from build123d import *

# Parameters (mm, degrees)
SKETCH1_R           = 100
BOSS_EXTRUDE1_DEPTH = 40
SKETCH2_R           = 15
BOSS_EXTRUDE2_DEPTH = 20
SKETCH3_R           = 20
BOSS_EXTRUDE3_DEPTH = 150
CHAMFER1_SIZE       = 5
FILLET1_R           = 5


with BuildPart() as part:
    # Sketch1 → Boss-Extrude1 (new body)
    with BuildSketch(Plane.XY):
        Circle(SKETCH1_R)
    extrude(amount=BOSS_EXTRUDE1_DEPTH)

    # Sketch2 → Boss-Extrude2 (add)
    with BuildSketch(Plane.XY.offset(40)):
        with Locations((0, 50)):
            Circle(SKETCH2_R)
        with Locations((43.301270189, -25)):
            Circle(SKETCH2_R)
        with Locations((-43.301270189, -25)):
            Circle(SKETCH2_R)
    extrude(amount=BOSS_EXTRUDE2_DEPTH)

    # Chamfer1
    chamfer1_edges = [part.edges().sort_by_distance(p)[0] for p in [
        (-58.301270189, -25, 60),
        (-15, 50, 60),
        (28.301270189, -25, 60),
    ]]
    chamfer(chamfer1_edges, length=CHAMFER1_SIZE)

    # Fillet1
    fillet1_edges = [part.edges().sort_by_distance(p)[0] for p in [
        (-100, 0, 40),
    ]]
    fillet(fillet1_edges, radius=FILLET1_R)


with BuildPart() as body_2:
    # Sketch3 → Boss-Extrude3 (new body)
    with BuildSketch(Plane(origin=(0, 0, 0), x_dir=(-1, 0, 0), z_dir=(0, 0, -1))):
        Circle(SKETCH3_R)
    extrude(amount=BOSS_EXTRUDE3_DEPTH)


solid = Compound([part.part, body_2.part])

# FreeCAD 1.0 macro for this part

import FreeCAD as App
import Part
import Sketcher

V = App.Vector
Q = App.Units.Quantity


def edges_at(feature, points):
    """Names of the edges that pass closest to the given points."""
    edges = feature.Shape.Edges
    near = lambda p: min(range(len(edges)), key=lambda i: edges[i].distToShape(Part.Vertex(*p))[0])
    return sorted({f"Edge{near(p) + 1}" for p in points})

doc = App.newDocument("Part")
body = doc.addObject("PartDesign::Body", "Body")

sketch1 = body.newObject("Sketcher::SketchObject", "Sketch")
sketch1.AttachmentSupport = (doc.getObject("XY_Plane"), [""])
sketch1.MapMode = "FlatFace"
sketch1.addGeometry(Part.Circle(V(0, 0, 0), V(0, 0, 1), 100), False)
sketch1.addConstraint([
    Sketcher.Constraint("Coincident", 0, 3, -1, 1),
    Sketcher.Constraint("Diameter", 0, Q("200 mm")),
])
pad1 = body.newObject("PartDesign::Pad", "Pad")
pad1.Profile = sketch1
pad1.Length = 40

sketch2 = body.newObject("Sketcher::SketchObject", "Sketch001")
sketch2.AttachmentSupport = (doc.getObject("XY_Plane"), [""])
sketch2.MapMode = "FlatFace"
sketch2.AttachmentOffset = App.Placement(V(0, 0, 40), App.Rotation())
sketch2.addGeometry([
    Part.Circle(V(0, 50, 0), V(0, 0, 1), 15),
    Part.Circle(V(43, -25, 0), V(0, 0, 1), 15),
    Part.Circle(V(-43, -25, 0), V(0, 0, 1), 15),
], False)
sketch2.addConstraint([
    Sketcher.Constraint("Equal", 0, 1),
    Sketcher.Constraint("Equal", 1, 2),
    Sketcher.Constraint("Symmetric", 1, 3, 2, 3, -2),
    Sketcher.Constraint("PointOnObject", 0, 3, -2),
    Sketcher.Constraint("Diameter", 0, Q("30 mm")),
    Sketcher.Constraint("DistanceY", -1, 1, 0, 3, Q("50 mm")),
    Sketcher.Constraint("DistanceY", 1, 3, -1, 1, Q("25 mm")),
    Sketcher.Constraint("DistanceX", -1, 1, 1, 3, Q("43.30127 mm")),
])
pad2 = body.newObject("PartDesign::Pad", "Pad001")
pad2.Profile = sketch2
pad2.Length = 20
doc.recompute()

chamfer = body.newObject("PartDesign::Chamfer", "Chamfer")
chamfer.Base = (pad2, edges_at(pad2, [(-58.301, -25, 60), (-15, 50, 60), (28.301, -25, 60)]))
chamfer.Size = 5
doc.recompute()

fillet = body.newObject("PartDesign::Fillet", "Fillet")
fillet.Base = (chamfer, edges_at(chamfer, [(-100, 0, 40)]))
fillet.Radius = 5
body2 = doc.addObject("PartDesign::Body", "Body001")

sketch3 = body2.newObject("Sketcher::SketchObject", "Sketch002")
sketch3.AttachmentSupport = (doc.getObject("XY_Plane001"), [""])
sketch3.MapMode = "FlatFace"
sketch3.addGeometry(Part.Circle(V(0, 0, 0), V(0, 0, 1), 20), False)
sketch3.addConstraint([
    Sketcher.Constraint("Coincident", 0, 3, -1, 1),
    Sketcher.Constraint("Diameter", 0, Q("40 mm")),
])
pad3 = body2.newObject("PartDesign::Pad", "Pad002")
pad3.Profile = sketch3
pad3.Length = 150
pad3.Reversed = True

doc.recompute()
